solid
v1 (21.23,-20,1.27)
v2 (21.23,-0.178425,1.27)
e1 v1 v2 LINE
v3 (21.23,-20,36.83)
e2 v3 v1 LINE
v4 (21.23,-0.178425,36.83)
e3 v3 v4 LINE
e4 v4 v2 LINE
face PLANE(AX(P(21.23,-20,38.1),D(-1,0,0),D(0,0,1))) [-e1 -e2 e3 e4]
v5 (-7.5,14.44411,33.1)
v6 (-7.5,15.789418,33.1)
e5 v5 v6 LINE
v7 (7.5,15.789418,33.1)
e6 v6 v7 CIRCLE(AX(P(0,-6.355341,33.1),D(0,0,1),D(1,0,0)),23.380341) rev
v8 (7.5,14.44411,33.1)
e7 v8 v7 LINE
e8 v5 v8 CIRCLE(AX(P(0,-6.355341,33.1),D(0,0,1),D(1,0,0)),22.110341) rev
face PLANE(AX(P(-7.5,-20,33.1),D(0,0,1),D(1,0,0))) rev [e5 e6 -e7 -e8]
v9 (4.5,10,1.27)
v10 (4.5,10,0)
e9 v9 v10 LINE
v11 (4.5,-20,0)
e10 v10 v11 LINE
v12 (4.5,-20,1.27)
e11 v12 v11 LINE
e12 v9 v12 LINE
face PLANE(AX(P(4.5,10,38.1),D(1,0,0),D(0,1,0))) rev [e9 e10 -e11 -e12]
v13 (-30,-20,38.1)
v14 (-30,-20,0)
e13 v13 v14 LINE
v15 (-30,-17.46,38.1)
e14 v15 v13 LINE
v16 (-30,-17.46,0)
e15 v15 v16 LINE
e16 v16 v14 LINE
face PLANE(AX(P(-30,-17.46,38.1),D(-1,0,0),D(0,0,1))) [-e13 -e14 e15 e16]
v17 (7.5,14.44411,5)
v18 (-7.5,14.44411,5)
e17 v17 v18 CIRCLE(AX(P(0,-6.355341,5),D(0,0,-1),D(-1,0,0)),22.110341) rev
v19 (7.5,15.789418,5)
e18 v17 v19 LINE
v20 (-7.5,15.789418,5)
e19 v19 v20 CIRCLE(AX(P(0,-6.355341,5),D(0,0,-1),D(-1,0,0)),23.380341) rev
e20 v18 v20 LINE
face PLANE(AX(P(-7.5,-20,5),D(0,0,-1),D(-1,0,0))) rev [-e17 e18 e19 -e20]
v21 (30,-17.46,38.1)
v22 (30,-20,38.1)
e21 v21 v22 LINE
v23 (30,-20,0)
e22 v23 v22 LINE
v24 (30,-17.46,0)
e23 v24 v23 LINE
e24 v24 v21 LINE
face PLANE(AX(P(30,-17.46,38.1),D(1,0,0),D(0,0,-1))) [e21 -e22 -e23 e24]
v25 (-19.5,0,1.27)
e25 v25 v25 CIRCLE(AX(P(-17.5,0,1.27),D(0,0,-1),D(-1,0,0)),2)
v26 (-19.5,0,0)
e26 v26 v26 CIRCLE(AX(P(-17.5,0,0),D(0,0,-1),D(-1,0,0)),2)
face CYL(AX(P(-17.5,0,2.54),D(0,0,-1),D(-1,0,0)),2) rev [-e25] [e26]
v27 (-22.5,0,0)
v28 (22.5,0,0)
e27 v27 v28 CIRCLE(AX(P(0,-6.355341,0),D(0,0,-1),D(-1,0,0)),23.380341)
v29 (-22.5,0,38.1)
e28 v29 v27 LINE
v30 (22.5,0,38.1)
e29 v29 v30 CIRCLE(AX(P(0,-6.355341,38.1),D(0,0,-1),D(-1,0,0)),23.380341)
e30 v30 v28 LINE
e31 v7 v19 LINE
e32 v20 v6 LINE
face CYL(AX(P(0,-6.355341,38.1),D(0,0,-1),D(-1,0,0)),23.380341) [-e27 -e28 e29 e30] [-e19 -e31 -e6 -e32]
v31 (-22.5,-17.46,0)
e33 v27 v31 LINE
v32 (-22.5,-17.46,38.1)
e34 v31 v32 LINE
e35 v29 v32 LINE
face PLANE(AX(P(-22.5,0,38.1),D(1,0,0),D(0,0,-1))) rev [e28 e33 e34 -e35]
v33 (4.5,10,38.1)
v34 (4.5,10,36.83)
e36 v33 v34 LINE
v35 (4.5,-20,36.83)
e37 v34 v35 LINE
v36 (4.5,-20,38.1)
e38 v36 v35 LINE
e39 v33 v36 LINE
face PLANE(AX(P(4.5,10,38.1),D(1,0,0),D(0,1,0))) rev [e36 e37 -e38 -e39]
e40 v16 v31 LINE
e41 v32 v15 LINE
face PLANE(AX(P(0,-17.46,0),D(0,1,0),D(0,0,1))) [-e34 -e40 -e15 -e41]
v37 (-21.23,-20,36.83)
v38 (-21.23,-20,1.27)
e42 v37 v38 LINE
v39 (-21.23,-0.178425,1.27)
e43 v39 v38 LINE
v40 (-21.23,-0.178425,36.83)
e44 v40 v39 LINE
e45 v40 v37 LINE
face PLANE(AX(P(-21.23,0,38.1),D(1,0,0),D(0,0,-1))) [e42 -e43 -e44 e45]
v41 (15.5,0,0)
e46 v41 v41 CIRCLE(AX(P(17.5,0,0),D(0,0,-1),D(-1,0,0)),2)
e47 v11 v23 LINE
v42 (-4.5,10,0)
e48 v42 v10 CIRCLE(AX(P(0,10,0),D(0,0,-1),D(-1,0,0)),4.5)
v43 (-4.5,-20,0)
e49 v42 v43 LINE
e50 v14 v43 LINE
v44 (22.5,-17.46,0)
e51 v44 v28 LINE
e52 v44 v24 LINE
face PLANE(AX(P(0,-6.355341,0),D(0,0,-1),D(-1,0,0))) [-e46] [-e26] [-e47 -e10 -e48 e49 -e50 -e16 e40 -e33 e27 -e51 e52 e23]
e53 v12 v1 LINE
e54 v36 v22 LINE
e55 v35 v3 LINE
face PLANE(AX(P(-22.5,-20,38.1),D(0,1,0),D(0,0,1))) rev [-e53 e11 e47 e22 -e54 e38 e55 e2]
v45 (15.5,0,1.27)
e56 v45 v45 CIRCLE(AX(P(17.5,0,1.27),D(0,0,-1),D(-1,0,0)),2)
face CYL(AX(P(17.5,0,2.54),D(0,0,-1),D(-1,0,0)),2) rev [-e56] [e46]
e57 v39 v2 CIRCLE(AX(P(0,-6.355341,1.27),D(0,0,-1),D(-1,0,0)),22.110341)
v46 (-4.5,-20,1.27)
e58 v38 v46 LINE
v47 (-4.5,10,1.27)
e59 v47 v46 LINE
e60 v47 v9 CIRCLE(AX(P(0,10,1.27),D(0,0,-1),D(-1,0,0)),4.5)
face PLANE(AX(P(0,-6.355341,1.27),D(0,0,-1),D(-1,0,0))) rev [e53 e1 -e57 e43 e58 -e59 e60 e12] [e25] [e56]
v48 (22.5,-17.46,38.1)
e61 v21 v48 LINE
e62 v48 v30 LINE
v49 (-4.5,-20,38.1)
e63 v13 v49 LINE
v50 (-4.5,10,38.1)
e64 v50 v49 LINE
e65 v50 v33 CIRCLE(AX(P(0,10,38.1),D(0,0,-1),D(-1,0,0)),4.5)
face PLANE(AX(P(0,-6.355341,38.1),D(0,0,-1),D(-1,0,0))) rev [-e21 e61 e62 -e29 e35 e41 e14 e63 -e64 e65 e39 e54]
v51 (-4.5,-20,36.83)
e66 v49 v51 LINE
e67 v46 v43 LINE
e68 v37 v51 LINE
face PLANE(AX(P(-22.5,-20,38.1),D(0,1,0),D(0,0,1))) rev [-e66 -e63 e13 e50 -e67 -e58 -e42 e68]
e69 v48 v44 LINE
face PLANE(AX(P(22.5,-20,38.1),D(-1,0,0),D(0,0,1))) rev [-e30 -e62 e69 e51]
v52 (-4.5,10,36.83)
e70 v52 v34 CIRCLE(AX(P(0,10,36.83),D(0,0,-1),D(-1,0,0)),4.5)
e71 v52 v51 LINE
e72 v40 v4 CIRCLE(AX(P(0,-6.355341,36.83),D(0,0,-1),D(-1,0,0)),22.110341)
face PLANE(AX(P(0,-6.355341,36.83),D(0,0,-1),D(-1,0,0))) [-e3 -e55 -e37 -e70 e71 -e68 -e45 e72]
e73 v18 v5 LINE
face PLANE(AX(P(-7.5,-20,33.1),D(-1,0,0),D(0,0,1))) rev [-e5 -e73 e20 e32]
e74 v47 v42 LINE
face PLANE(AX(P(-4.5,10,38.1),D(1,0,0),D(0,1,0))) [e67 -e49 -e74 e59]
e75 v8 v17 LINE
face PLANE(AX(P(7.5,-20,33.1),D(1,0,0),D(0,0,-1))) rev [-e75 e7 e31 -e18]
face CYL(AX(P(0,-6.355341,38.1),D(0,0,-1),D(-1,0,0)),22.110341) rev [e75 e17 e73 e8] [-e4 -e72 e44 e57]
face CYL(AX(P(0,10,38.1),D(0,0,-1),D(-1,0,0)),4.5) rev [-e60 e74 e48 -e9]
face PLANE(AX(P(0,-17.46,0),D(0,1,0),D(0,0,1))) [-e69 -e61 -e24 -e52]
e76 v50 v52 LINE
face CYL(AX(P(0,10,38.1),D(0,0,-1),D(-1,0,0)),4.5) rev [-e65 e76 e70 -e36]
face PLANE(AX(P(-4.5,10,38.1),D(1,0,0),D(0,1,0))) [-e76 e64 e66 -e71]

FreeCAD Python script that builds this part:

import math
import FreeCAD as App
import Part
import Sketcher

V = App.Vector
Q = App.Units.Quantity


def faces_at(feature, points):
    """Names of the faces that lie closest to the given points."""
    faces = feature.Shape.Faces
    near = lambda p: min(range(len(faces)), key=lambda i: faces[i].distToShape(Part.Vertex(*p))[0])
    return sorted({f"Face{near(p) + 1}" for p in points})

doc = App.newDocument("Part")
body = doc.addObject("PartDesign::Body", "Body")

# Sketch on XY plane
sketch1 = doc.addObject("Sketcher::SketchObject", "Sketch")
body.addObject(sketch1)
sketch1.AttachmentSupport = (doc.XY_Plane, [""])
sketch1.MapMode = "FlatFace"
sketch1.addGeometry(Part.LineSegment(V(-22, 0, 0), V(-22, -20, 0)), False)
sketch1.addGeometry(Part.LineSegment(V(-22, -20, 0), V(22, -20, 0)), False)
sketch1.addGeometry(Part.LineSegment(V(22, -20, 0), V(22, 0, 0)), False)
sketch1.addGeometry(Part.ArcOfCircle(Part.Circle(V(0, -6, 0), V(0, 0, 1), 23), math.radians(16), math.radians(164)), False)
sketch1.addConstraint(Sketcher.Constraint("Coincident", 0, 2, 1, 1))
sketch1.addConstraint(Sketcher.Constraint("Coincident", 1, 2, 2, 1))
sketch1.addConstraint(Sketcher.Constraint("Coincident", 2, 2, 3, 1))
sketch1.addConstraint(Sketcher.Constraint("Coincident", 3, 2, 0, 1))
sketch1.addConstraint(Sketcher.Constraint("Vertical", 0))
sketch1.addConstraint(Sketcher.Constraint("Horizontal", 1))
sketch1.addConstraint(Sketcher.Constraint("Vertical", 2))
sketch1.addConstraint(Sketcher.Constraint("Symmetric", 2, 2, 3, 2, -1, 1))
sketch1.addConstraint(Sketcher.Constraint("PointOnObject", 3, 3, -2))
sketch1.addConstraint(Sketcher.Constraint("DistanceX", 1, 1, 1, 2, Q("45 mm")))
sketch1.addConstraint(Sketcher.Constraint("DistanceY", 0, 2, 0, 1, Q("20 mm")))
sketch1.addConstraint(Sketcher.Constraint("Radius", 3, Q("23.380341 mm")))
pad1 = doc.addObject("PartDesign::Pad", "Pad")
body.addObject(pad1)
pad1.Profile = sketch1
pad1.Length = 38.1
doc.recompute()

thickness = doc.addObject("PartDesign::Thickness", "Thickness")
body.addObject(thickness)
thickness.Base = (pad1, faces_at(pad1, [(0, -20, 19.05)]))
thickness.Value = 1.27
thickness.Reversed = True
thickness.Join = "Intersection"

# Sketch on XY plane
sketch2 = doc.addObject("Sketcher::SketchObject", "Sketch001")
body.addObject(sketch2)
sketch2.AttachmentSupport = (doc.XY_Plane, [""])
sketch2.MapMode = "FlatFace"
sketch2.addGeometry(Part.LineSegment(V(4.5, 10, 0), V(4.5, -20, 0)), False)
sketch2.addGeometry(Part.LineSegment(V(4.5, -20, 0), V(-4.5, -20, 0)), False)
sketch2.addGeometry(Part.LineSegment(V(-4.5, -20, 0), V(-4.5, 10, 0)), False)
sketch2.addGeometry(Part.ArcOfCircle(Part.Circle(V(0, 10, 0), V(0, 0, 1), 4.5), math.radians(0), math.radians(180)), False)
sketch2.addConstraint(Sketcher.Constraint("Coincident", 0, 2, 1, 1))
sketch2.addConstraint(Sketcher.Constraint("Coincident", 1, 2, 2, 1))
sketch2.addConstraint(Sketcher.Constraint("Tangent", 2, 2, 3, 2))
sketch2.addConstraint(Sketcher.Constraint("Tangent", 3, 1, 0, 1))
sketch2.addConstraint(Sketcher.Constraint("Vertical", 0))
sketch2.addConstraint(Sketcher.Constraint("Horizontal", 1))
sketch2.addConstraint(Sketcher.Constraint("Vertical", 2))
sketch2.addConstraint(Sketcher.Constraint("PointOnObject", 3, 3, -2))
sketch2.addConstraint(Sketcher.Constraint("Radius", 3, Q("4.5 mm")))
sketch2.addConstraint(Sketcher.Constraint("DistanceY", 0, 2, 0, 1, Q("30 mm")))
sketch2.addConstraint(Sketcher.Constraint("DistanceY", -1, 1, 3, 3, Q("10 mm")))
pocket1 = doc.addObject("PartDesign::Pocket", "Pocket")
body.addObject(pocket1)
pocket1.Profile = sketch2
pocket1.Type = "ThroughAll"
pocket1.Reversed = True

# Sketch on XY plane
sketch3 = doc.addObject("Sketcher::SketchObject", "Sketch002")
body.addObject(sketch3)
sketch3.AttachmentSupport = (doc.XY_Plane, [""])
sketch3.MapMode = "FlatFace"
sketch3.addGeometry(Part.Circle(V(17.5, 0, 0), V(0, 0, 1), 2), False)
sketch3.addGeometry(Part.Circle(V(-17.5, 0, 0), V(0, 0, 1), 2), False)
sketch3.addConstraint(Sketcher.Constraint("Equal", 0, 1))
sketch3.addConstraint(Sketcher.Constraint("Symmetric", 0, 3, 1, 3, -1, 1))
sketch3.addConstraint(Sketcher.Constraint("PointOnObject", 0, 3, -1))
sketch3.addConstraint(Sketcher.Constraint("Diameter", 0, Q("4 mm")))
sketch3.addConstraint(Sketcher.Constraint("DistanceX", 1, 3, 0, 3, Q("35 mm")))
pocket2 = doc.addObject("PartDesign::Pocket", "Pocket001")
body.addObject(pocket2)
pocket2.Profile = sketch3
pocket2.Length = 2.54
pocket2.Reversed = True

# Sketch on XZ plane
sketch4 = doc.addObject("Sketcher::SketchObject", "Sketch003")
body.addObject(sketch4)
sketch4.AttachmentSupport = (doc.XZ_Plane, [""])
sketch4.MapMode = "FlatFace"
sketch4.addGeometry(Part.LineSegment(V(-8, 5, 0), V(-8, 33, 0)), False)
sketch4.addGeometry(Part.LineSegment(V(-8, 33, 0), V(8, 33, 0)), False)
sketch4.addGeometry(Part.LineSegment(V(8, 33, 0), V(8, 5, 0)), False)
sketch4.addGeometry(Part.LineSegment(V(8, 5, 0), V(-8, 5, 0)), False)
sketch4.addConstraint(Sketcher.Constraint("Coincident", 0, 2, 1, 1))
sketch4.addConstraint(Sketcher.Constraint("Coincident", 1, 2, 2, 1))
sketch4.addConstraint(Sketcher.Constraint("Coincident", 2, 2, 3, 1))
sketch4.addConstraint(Sketcher.Constraint("Coincident", 3, 2, 0, 1))
sketch4.addConstraint(Sketcher.Constraint("Vertical", 0))
sketch4.addConstraint(Sketcher.Constraint("Horizontal", 1))
sketch4.addConstraint(Sketcher.Constraint("Vertical", 2))
sketch4.addConstraint(Sketcher.Constraint("Horizontal", 3))
sketch4.addConstraint(Sketcher.Constraint("DistanceX", 1, 1, 1, 2, Q("15 mm")))
sketch4.addConstraint(Sketcher.Constraint("DistanceY", 0, 1, 0, 2, Q("28.1 mm")))
sketch4.addConstraint(Sketcher.Constraint("DistanceY", -1, 1, 2, 2, Q("5 mm")))
sketch4.addConstraint(Sketcher.Constraint("DistanceX", 0, 2, -1, 1, Q("7.5 mm")))
pocket3 = doc.addObject("PartDesign::Pocket", "Pocket002")
body.addObject(pocket3)
pocket3.Profile = sketch4
pocket3.Type = "ThroughAll"
pocket3.Midplane = True

# Sketch on XZ plane
sketch5 = doc.addObject("Sketcher::SketchObject", "Sketch004")
body.addObject(sketch5)
sketch5.AttachmentSupport = (doc.XZ_Plane, [""])
sketch5.MapMode = "FlatFace"
sketch5.AttachmentOffset = App.Placement(V(0, 0, 20), App.Rotation())
sketch5.addGeometry(Part.LineSegment(V(-30, 38, 0), V(-30, 0, 0)), False)
sketch5.addGeometry(Part.LineSegment(V(-30, 0, 0), V(-22, 0, 0)), False)
sketch5.addGeometry(Part.LineSegment(V(-22, 0, 0), V(-22, 38, 0)), False)
sketch5.addGeometry(Part.LineSegment(V(-22, 38, 0), V(-30, 38, 0)), False)
sketch5.addGeometry(Part.LineSegment(V(22, 38, 0), V(22, 0, 0)), False)
sketch5.addGeometry(Part.LineSegment(V(22, 0, 0), V(30, 0, 0)), False)
sketch5.addGeometry(Part.LineSegment(V(30, 0, 0), V(30, 38, 0)), False)
sketch5.addGeometry(Part.LineSegment(V(30, 38, 0), V(22, 38, 0)), False)
sketch5.addConstraint(Sketcher.Constraint("Coincident", 0, 2, 1, 1))
sketch5.addConstraint(Sketcher.Constraint("Coincident", 1, 2, 2, 1))
sketch5.addConstraint(Sketcher.Constraint("Coincident", 2, 2, 3, 1))
sketch5.addConstraint(Sketcher.Constraint("Coincident", 3, 2, 0, 1))
sketch5.addConstraint(Sketcher.Constraint("Coincident", 4, 2, 5, 1))
sketch5.addConstraint(Sketcher.Constraint("Coincident", 5, 2, 6, 1))
sketch5.addConstraint(Sketcher.Constraint("Coincident", 6, 2, 7, 1))
sketch5.addConstraint(Sketcher.Constraint("Coincident", 7, 2, 4, 1))
sketch5.addConstraint(Sketcher.Constraint("Vertical", 0))
sketch5.addConstraint(Sketcher.Constraint("Horizontal", 1))
sketch5.addConstraint(Sketcher.Constraint("Vertical", 2))
sketch5.addConstraint(Sketcher.Constraint("Horizontal", 3))
sketch5.addConstraint(Sketcher.Constraint("Vertical", 4))
sketch5.addConstraint(Sketcher.Constraint("Horizontal", 5))
sketch5.addConstraint(Sketcher.Constraint("Vertical", 6))
sketch5.addConstraint(Sketcher.Constraint("Horizontal", 7))
sketch5.addConstraint(Sketcher.Constraint("Symmetric", 1, 2, 4, 2, -1, 1))
sketch5.addConstraint(Sketcher.Constraint("Symmetric", 0, 2, 5, 2, -2))
sketch5.addConstraint(Sketcher.Constraint("Horizontal", 3, 2, 6, 2))
sketch5.addConstraint(Sketcher.Constraint("DistanceX", 1, 1, 1, 2, Q("7.5 mm")))
sketch5.addConstraint(Sketcher.Constraint("DistanceY", 0, 2, 0, 1, Q("38.1 mm")))
sketch5.addConstraint(Sketcher.Constraint("DistanceX", 0, 2, -1, 1, Q("30 mm")))
pad2 = doc.addObject("PartDesign::Pad", "Pad001")
body.addObject(pad2)
pad2.Profile = sketch5
pad2.Length = 2.54
pad2.Reversed = True

doc.recompute()
